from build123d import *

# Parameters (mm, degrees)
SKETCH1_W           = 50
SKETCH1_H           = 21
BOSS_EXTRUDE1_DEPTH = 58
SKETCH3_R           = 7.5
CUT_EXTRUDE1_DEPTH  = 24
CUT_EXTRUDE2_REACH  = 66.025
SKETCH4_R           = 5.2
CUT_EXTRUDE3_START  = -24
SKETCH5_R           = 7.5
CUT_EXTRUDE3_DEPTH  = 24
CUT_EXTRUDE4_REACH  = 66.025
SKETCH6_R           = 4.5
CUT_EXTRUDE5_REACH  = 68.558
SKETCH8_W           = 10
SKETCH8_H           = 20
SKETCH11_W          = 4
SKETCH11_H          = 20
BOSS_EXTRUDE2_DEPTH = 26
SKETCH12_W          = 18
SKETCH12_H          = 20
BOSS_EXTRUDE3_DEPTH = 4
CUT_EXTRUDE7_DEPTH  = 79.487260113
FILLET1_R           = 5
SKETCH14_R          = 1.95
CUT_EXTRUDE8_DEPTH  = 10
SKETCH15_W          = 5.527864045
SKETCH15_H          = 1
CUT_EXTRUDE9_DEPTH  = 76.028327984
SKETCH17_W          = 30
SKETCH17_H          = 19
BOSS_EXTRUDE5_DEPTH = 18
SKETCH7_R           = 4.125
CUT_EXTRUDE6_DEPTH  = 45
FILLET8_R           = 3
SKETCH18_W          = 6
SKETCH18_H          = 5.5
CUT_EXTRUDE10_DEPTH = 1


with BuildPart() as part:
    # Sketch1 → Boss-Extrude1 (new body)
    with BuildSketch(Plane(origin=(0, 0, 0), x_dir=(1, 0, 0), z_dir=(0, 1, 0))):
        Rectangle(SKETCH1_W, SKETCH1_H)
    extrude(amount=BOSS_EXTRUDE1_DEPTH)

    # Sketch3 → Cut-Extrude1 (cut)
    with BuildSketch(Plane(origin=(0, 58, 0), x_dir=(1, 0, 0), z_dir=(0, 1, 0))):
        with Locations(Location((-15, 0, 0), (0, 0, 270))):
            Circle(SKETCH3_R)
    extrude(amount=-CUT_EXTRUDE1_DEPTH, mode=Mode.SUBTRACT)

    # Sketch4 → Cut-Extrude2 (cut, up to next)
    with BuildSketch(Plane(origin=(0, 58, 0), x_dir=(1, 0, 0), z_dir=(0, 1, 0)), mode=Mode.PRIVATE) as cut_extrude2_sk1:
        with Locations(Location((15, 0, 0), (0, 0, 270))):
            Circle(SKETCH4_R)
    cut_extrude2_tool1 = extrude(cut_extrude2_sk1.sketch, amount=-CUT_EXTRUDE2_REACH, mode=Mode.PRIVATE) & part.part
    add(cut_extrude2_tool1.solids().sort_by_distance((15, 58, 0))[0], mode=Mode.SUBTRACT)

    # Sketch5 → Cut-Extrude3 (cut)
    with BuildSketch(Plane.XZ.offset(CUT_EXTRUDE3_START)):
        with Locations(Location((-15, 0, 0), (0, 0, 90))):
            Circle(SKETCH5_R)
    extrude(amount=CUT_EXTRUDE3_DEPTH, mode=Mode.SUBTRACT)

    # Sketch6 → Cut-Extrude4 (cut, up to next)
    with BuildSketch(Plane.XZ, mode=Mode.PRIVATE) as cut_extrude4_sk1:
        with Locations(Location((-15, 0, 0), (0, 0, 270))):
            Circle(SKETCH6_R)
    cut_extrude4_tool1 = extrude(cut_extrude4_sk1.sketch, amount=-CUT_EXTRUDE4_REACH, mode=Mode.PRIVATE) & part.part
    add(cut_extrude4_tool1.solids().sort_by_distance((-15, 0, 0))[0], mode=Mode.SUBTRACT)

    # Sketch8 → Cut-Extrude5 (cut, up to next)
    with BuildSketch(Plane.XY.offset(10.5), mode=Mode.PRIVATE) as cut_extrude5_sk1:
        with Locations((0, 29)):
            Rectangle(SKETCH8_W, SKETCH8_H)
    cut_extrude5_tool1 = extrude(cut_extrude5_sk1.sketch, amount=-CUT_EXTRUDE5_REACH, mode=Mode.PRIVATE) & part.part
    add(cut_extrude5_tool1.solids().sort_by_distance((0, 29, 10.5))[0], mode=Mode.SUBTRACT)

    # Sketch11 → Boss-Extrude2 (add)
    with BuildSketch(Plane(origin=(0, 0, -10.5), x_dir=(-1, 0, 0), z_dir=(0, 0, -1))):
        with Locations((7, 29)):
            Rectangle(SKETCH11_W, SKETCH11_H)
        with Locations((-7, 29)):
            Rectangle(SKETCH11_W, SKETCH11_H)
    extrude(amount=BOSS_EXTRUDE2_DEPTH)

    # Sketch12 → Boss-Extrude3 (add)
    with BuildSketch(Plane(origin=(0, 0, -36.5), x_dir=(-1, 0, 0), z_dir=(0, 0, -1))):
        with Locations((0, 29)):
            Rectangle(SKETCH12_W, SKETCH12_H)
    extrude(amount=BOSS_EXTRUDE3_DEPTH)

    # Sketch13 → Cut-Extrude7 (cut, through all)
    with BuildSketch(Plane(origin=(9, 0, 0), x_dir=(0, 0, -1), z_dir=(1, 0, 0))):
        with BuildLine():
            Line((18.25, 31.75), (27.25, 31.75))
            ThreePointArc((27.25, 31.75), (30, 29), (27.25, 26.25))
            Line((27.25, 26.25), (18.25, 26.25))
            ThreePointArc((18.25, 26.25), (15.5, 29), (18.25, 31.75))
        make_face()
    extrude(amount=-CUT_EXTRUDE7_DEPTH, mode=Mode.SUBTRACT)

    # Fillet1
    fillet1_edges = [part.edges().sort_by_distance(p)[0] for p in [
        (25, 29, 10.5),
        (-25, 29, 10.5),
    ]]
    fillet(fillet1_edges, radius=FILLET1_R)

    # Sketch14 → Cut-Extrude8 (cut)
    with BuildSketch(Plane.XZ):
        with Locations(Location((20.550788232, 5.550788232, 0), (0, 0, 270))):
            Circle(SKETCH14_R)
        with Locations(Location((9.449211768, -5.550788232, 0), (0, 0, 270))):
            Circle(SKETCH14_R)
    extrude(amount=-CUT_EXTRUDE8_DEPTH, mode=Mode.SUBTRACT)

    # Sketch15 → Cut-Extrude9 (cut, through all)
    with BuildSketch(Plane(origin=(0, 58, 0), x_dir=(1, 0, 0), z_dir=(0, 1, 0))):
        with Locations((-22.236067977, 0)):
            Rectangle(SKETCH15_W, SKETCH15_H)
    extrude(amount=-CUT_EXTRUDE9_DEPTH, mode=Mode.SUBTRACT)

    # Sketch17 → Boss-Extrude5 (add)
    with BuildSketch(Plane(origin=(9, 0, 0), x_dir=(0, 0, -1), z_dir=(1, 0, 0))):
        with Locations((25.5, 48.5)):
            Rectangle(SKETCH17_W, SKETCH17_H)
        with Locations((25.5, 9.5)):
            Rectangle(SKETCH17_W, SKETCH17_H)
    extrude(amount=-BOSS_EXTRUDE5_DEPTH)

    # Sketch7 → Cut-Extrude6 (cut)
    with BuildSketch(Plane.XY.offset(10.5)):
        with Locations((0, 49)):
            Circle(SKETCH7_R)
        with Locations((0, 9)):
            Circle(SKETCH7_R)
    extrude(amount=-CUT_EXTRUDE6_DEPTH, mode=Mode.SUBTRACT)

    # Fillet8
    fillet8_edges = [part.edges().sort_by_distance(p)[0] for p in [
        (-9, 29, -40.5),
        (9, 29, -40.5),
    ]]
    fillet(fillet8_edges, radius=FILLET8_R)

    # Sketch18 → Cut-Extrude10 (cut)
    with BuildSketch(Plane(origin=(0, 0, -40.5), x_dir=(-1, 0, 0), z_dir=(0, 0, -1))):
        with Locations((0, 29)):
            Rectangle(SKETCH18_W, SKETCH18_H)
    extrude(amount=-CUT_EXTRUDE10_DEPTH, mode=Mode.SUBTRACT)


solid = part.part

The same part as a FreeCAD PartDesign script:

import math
import FreeCAD as App
import Part
import Sketcher

V = App.Vector
Q = App.Units.Quantity


def edges_at(feature, points):
    """Names of the edges that pass closest to the given points."""
    edges = feature.Shape.Edges
    near = lambda p: min(range(len(edges)), key=lambda i: edges[i].distToShape(Part.Vertex(*p))[0])
    return sorted({f"Edge{near(p) + 1}" for p in points})

doc = App.newDocument("Part")
params = doc.addObject("Spreadsheet::Sheet", "Params")
for row, (alias, value) in enumerate([
    ("sketch1_width", "50 mm"),
    ("sketch1_height", "21 mm"),
    ("pad1_length", "58 mm"),
    ("sketch2_diameter", "15 mm"),
    ("pocket1_length", "24 mm"),
    ("sketch3_diameter", "10.4 mm"),
    ("sketch4_diameter", "15 mm"),
    ("pocket3_length", "24 mm"),
    ("sketch5_diameter", "9 mm"),
    ("pocket4_length", "34 mm"),
    ("sketch6_width", "10 mm"),
    ("sketch6_height", "20 mm"),
    ("sketch7_width", "4 mm"),
    ("sketch7_height", "20 mm"),
    ("pad2_length", "26 mm"),
    ("sketch8_width", "18 mm"),
    ("sketch8_height", "20 mm"),
    ("pad3_length", "4 mm"),
    ("sketch9_height", "9 mm"),
    ("sketch9_radius", "2.75 mm"),
    ("fillet_radius", "5 mm"),
    ("sketch10_diameter", "3.9 mm"),
    ("pocket7_length", "10 mm"),
    ("sketch11_height", "1 mm"),
    ("sketch12_width", "19 mm"),
    ("sketch12_height", "30 mm"),
    ("pad4_length", "18 mm"),
    ("sketch13_diameter", "8.25 mm"),
    ("pocket9_length", "45 mm"),
    ("fillet2_radius", "3 mm"),
    ("sketch14_width", "6 mm"),
    ("sketch14_height", "5.5 mm"),
    ("pocket10_length", "1 mm"),
], start=1):
    params.set(f"A{row}", alias)
    params.set(f"B{row}", "=" + value)
    params.setAlias(f"B{row}", alias)

body = doc.addObject("PartDesign::Body", "Body")

sketch1 = body.newObject("Sketcher::SketchObject", "Sketch")
sketch1.AttachmentSupport = (doc.getObject("XZ_Plane"), [""])
sketch1.MapMode = "FlatFace"
sketch1.addGeometry([
    Part.LineSegment(V(-25, -10, 0), V(-25, 10, 0)),
    Part.LineSegment(V(-25, 10, 0), V(25, 10, 0)),
    Part.LineSegment(V(25, 10, 0), V(25, -10, 0)),
    Part.LineSegment(V(25, -10, 0), V(-25, -10, 0)),
], False)
sketch1.addConstraint([
    Sketcher.Constraint("Coincident", 0, 2, 1, 1),
    Sketcher.Constraint("Coincident", 1, 2, 2, 1),
    Sketcher.Constraint("Coincident", 2, 2, 3, 1),
    Sketcher.Constraint("Coincident", 3, 2, 0, 1),
    Sketcher.Constraint("Vertical", 0),
    Sketcher.Constraint("Horizontal", 1),
    Sketcher.Constraint("Vertical", 2),
    Sketcher.Constraint("Horizontal", 3),
    Sketcher.Constraint("Symmetric", 0, 2, 2, 2, -1, 1),
    Sketcher.Constraint("DistanceX", 1, 1, 1, 2, Q("50 mm")),
    Sketcher.Constraint("DistanceY", 0, 1, 0, 2, Q("21 mm")),
])
sketch1.setExpression("Constraints[9]", "Params.sketch1_width")
sketch1.setExpression("Constraints[10]", "Params.sketch1_height")
pad1 = body.newObject("PartDesign::Pad", "Pad")
pad1.Profile = sketch1
pad1.setExpression("Length", "Params.pad1_length")
pad1.Reversed = True

sketch2 = body.newObject("Sketcher::SketchObject", "Sketch001")
sketch2.AttachmentSupport = (doc.getObject("XZ_Plane"), [""])
sketch2.MapMode = "FlatFace"
sketch2.AttachmentOffset = App.Placement(V(0, 0, -58), App.Rotation())
sketch2.addGeometry(Part.Circle(V(-15, 0, 0), V(0, 0, 1), 8), False)
sketch2.addConstraint([
    Sketcher.Constraint("PointOnObject", 0, 3, -1),
    Sketcher.Constraint("Diameter", 0, Q("15 mm")),
    Sketcher.Constraint("DistanceX", 0, 3, -1, 1, Q("15 mm")),
])
sketch2.setExpression("Constraints[1]", "Params.sketch2_diameter")
pocket1 = body.newObject("PartDesign::Pocket", "Pocket")
pocket1.Profile = sketch2
pocket1.setExpression("Length", "Params.pocket1_length")
pocket1.Reversed = True

sketch3 = body.newObject("Sketcher::SketchObject", "Sketch002")
sketch3.AttachmentSupport = (doc.getObject("XZ_Plane"), [""])
sketch3.MapMode = "FlatFace"
sketch3.AttachmentOffset = App.Placement(V(0, 0, -58), App.Rotation())
sketch3.addGeometry(Part.Circle(V(15, 0, 0), V(0, 0, 1), 5), False)
sketch3.addConstraint([
    Sketcher.Constraint("PointOnObject", 0, 3, -1),
    Sketcher.Constraint("Diameter", 0, Q("10.4 mm")),
    Sketcher.Constraint("DistanceX", -1, 1, 0, 3, Q("15 mm")),
])
sketch3.setExpression("Constraints[1]", "Params.sketch3_diameter")
pocket2 = body.newObject("PartDesign::Pocket", "Pocket001")
pocket2.Profile = sketch3
pocket2.Type = "UpToFirst"
pocket2.Reversed = True

sketch4 = body.newObject("Sketcher::SketchObject", "Sketch003")
sketch4.AttachmentSupport = (doc.getObject("XZ_Plane"), [""])
sketch4.MapMode = "FlatFace"
sketch4.AttachmentOffset = App.Placement(V(0, 0, -24), App.Rotation())
sketch4.addGeometry(Part.Circle(V(-15, 0, 0), V(0, 0, 1), 8), False)
sketch4.addConstraint([
    Sketcher.Constraint("PointOnObject", 0, 3, -1),
    Sketcher.Constraint("Diameter", 0, Q("15 mm")),
    Sketcher.Constraint("DistanceX", 0, 3, -1, 1, Q("15 mm")),
])
sketch4.setExpression("Constraints[1]", "Params.sketch4_diameter")
pocket3 = body.newObject("PartDesign::Pocket", "Pocket002")
pocket3.Profile = sketch4
pocket3.setExpression("Length", "Params.pocket3_length")
pocket3.Reversed = True

sketch5 = body.newObject("Sketcher::SketchObject", "Sketch004")
sketch5.AttachmentSupport = (doc.getObject("XZ_Plane"), [""])
sketch5.MapMode = "FlatFace"
sketch5.addGeometry(Part.Circle(V(-15, 0, 0), V(0, 0, 1), 4.5), False)
sketch5.addConstraint([
    Sketcher.Constraint("PointOnObject", 0, 3, -1),
    Sketcher.Constraint("Diameter", 0, Q("9 mm")),
    Sketcher.Constraint("DistanceX", 0, 3, -1, 1, Q("15 mm")),
])
sketch5.setExpression("Constraints[1]", "Params.sketch5_diameter")
pocket4 = body.newObject("PartDesign::Pocket", "Pocket003")
pocket4.Profile = sketch5
pocket4.setExpression("Length", "Params.pocket4_length")

sketch6 = body.newObject("Sketcher::SketchObject", "Sketch005")
sketch6.AttachmentSupport = (doc.getObject("XY_Plane"), [""])
sketch6.MapMode = "FlatFace"
sketch6.AttachmentOffset = App.Placement(V(0, 0, 10.5), App.Rotation())
sketch6.addGeometry([
    Part.LineSegment(V(-5, 39, 0), V(-5, 19, 0)),
    Part.LineSegment(V(-5, 19, 0), V(5, 19, 0)),
    Part.LineSegment(V(5, 19, 0), V(5, 39, 0)),
    Part.LineSegment(V(5, 39, 0), V(-5, 39, 0)),
], False)
sketch6.addConstraint([
    Sketcher.Constraint("Coincident", 0, 2, 1, 1),
    Sketcher.Constraint("Coincident", 1, 2, 2, 1),
    Sketcher.Constraint("Coincident", 2, 2, 3, 1),
    Sketcher.Constraint("Coincident", 3, 2, 0, 1),
    Sketcher.Constraint("Vertical", 0),
    Sketcher.Constraint("Horizontal", 1),
    Sketcher.Constraint("Vertical", 2),
    Sketcher.Constraint("Horizontal", 3),
    Sketcher.Constraint("DistanceX", 1, 1, 1, 2, Q("10 mm")),
    Sketcher.Constraint("DistanceY", 0, 2, 0, 1, Q("20 mm")),
    Sketcher.Constraint("DistanceX", 0, 2, -1, 1, Q("5 mm")),
    Sketcher.Constraint("DistanceY", -1, 1, 0, 2, Q("19 mm")),
])
sketch6.setExpression("Constraints[8]", "Params.sketch6_width")
sketch6.setExpression("Constraints[9]", "Params.sketch6_height")
pocket5 = body.newObject("PartDesign::Pocket", "Pocket004")
pocket5.Profile = sketch6
pocket5.Type = "UpToFirst"

sketch7 = body.newObject("Sketcher::SketchObject", "Sketch006")
sketch7.AttachmentSupport = (doc.getObject("XY_Plane"), [""])
sketch7.MapMode = "FlatFace"
sketch7.AttachmentOffset = App.Placement(V(0, 0, -10.5), App.Rotation())
sketch7.addGeometry([
    Part.LineSegment(V(-5, 39, 0), V(-5, 19, 0)),
    Part.LineSegment(V(-5, 19, 0), V(-9, 19, 0)),
    Part.LineSegment(V(-9, 19, 0), V(-9, 39, 0)),
    Part.LineSegment(V(-9, 39, 0), V(-5, 39, 0)),
    Part.LineSegment(V(9, 39, 0), V(9, 19, 0)),
    Part.LineSegment(V(9, 19, 0), V(5, 19, 0)),
    Part.LineSegment(V(5, 19, 0), V(5, 39, 0)),
    Part.LineSegment(V(5, 39, 0), V(9, 39, 0)),
], False)
sketch7.addConstraint([
    Sketcher.Constraint("Coincident", 0, 2, 1, 1),
    Sketcher.Constraint("Coincident", 1, 2, 2, 1),
    Sketcher.Constraint("Coincident", 2, 2, 3, 1),
    Sketcher.Constraint("Coincident", 3, 2, 0, 1),
    Sketcher.Constraint("Coincident", 4, 2, 5, 1),
    Sketcher.Constraint("Coincident", 5, 2, 6, 1),
    Sketcher.Constraint("Coincident", 6, 2, 7, 1),
    Sketcher.Constraint("Coincident", 7, 2, 4, 1),
    Sketcher.Constraint("Vertical", 0),
    Sketcher.Constraint("Horizontal", 1),
    Sketcher.Constraint("Vertical", 2),
    Sketcher.Constraint("Horizontal", 3),
    Sketcher.Constraint("Vertical", 4),
    Sketcher.Constraint("Horizontal", 5),
    Sketcher.Constraint("Vertical", 6),
    Sketcher.Constraint("Horizontal", 7),
    Sketcher.Constraint("Symmetric", 1, 2, 4, 2, -2),
    Sketcher.Constraint("Symmetric", 3, 2, 6, 2, -2),
    Sketcher.Constraint("DistanceX", 1, 2, 1, 1, Q("4 mm")),
    Sketcher.Constraint("DistanceY", 0, 2, 0, 1, Q("20 mm")),
    Sketcher.Constraint("DistanceX", 0, 2, -1, 1, Q("5 mm")),
    Sketcher.Constraint("DistanceY", -1, 1, 0, 2, Q("19 mm")),
])
sketch7.setExpression("Constraints[18]", "Params.sketch7_width")
sketch7.setExpression("Constraints[19]", "Params.sketch7_height")
pad2 = body.newObject("PartDesign::Pad", "Pad001")
pad2.Profile = sketch7
pad2.setExpression("Length", "Params.pad2_length")
pad2.Reversed = True

sketch8 = body.newObject("Sketcher::SketchObject", "Sketch007")
sketch8.AttachmentSupport = (doc.getObject("XY_Plane"), [""])
sketch8.MapMode = "FlatFace"
sketch8.AttachmentOffset = App.Placement(V(0, 0, -36.5), App.Rotation())
sketch8.addGeometry([
    Part.LineSegment(V(9, 39, 0), V(9, 19, 0)),
    Part.LineSegment(V(9, 19, 0), V(-9, 19, 0)),
    Part.LineSegment(V(-9, 19, 0), V(-9, 39, 0)),
    Part.LineSegment(V(-9, 39, 0), V(9, 39, 0)),
], False)
sketch8.addConstraint([
    Sketcher.Constraint("Coincident", 0, 2, 1, 1),
    Sketcher.Constraint("Coincident", 1, 2, 2, 1),
    Sketcher.Constraint("Coincident", 2, 2, 3, 1),
    Sketcher.Constraint("Coincident", 3, 2, 0, 1),
    Sketcher.Constraint("Vertical", 0),
    Sketcher.Constraint("Horizontal", 1),
    Sketcher.Constraint("Vertical", 2),
    Sketcher.Constraint("Horizontal", 3),
    Sketcher.Constraint("DistanceX", 1, 2, 1, 1, Q("18 mm")),
    Sketcher.Constraint("DistanceY", 0, 2, 0, 1, Q("20 mm")),
    Sketcher.Constraint("DistanceX", -1, 1, 0, 2, Q("9 mm")),
    Sketcher.Constraint("DistanceY", -1, 1, 0, 2, Q("19 mm")),
])
sketch8.setExpression("Constraints[8]", "Params.sketch8_width")
sketch8.setExpression("Constraints[9]", "Params.sketch8_height")
pad3 = body.newObject("PartDesign::Pad", "Pad002")
pad3.Profile = sketch8
pad3.setExpression("Length", "Params.pad3_length")
pad3.Reversed = True

sketch9 = body.newObject("Sketcher::SketchObject", "Sketch008")
sketch9.AttachmentSupport = (doc.getObject("YZ_Plane"), [""])
sketch9.MapMode = "FlatFace"
sketch9.AttachmentOffset = App.Placement(V(0, 0, 9), App.Rotation())
sketch9.addGeometry([
    Part.LineSegment(V(31.8, -27.2, 0), V(31.8, -18.2, 0)),
    Part.ArcOfCircle(Part.Circle(V(29, -18.2, 0), V(0, 0, 1), 2.8), math.radians(0), math.radians(180)),
    Part.LineSegment(V(26.2, -18.2, 0), V(26.2, -27.2, 0)),
    Part.ArcOfCircle(Part.Circle(V(29, -27.2, 0), V(0, 0, 1), 2.8), math.radians(180), math.radians(360)),
], False)
sketch9.addConstraint([
    Sketcher.Constraint("Tangent", 0, 2, 1, 1),
    Sketcher.Constraint("Tangent", 1, 2, 2, 1),
    Sketcher.Constraint("Tangent", 2, 2, 3, 1),
    Sketcher.Constraint("Tangent", 3, 2, 0, 1),
    Sketcher.Constraint("Vertical", 0),
    Sketcher.Constraint("Vertical", 2),
    Sketcher.Constraint("DistanceY", 0, 1, 0, 2, Q("9 mm")),
    Sketcher.Constraint("Radius", 1, Q("2.75 mm")),
    Sketcher.Constraint("DistanceX", -1, 1, 1, 3, Q("29 mm")),
    Sketcher.Constraint("DistanceY", 1, 3, -1, 1, Q("18.25 mm")),
])
sketch9.setExpression("Constraints[6]", "Params.sketch9_height")
sketch9.setExpression("Constraints[7]", "Params.sketch9_radius")
pocket6 = body.newObject("PartDesign::Pocket", "Pocket005")
pocket6.Profile = sketch9
pocket6.Type = "ThroughAll"
doc.recompute()

fillet = body.newObject("PartDesign::Fillet", "Fillet")
fillet.Base = (pocket6, edges_at(pocket6, [(25, 29, 10.5), (-25, 29, 10.5)]))
fillet.setExpression("Radius", "Params.fillet_radius")

sketch10 = body.newObject("Sketcher::SketchObject", "Sketch009")
sketch10.AttachmentSupport = (doc.getObject("XZ_Plane"), [""])
sketch10.MapMode = "FlatFace"
sketch10.addGeometry([
    Part.Circle(V(20.6, 5.6, 0), V(0, 0, 1), 1.9),
    Part.Circle(V(9.4, -5.6, 0), V(0, 0, 1), 1.9),
], False)
sketch10.addConstraint([
    Sketcher.Constraint("Equal", 0, 1),
    Sketcher.Constraint("Diameter", 0, Q("3.9 mm")),
    Sketcher.Constraint("DistanceX", -1, 1, 0, 3, Q("20.550788 mm")),
    Sketcher.Constraint("DistanceY", -1, 1, 0, 3, Q("5.550788 mm")),
    Sketcher.Constraint("DistanceX", -1, 1, 1, 3, Q("9.449212 mm")),
    Sketcher.Constraint("DistanceY", 1, 3, -1, 1, Q("5.550788 mm")),
])
sketch10.setExpression("Constraints[1]", "Params.sketch10_diameter")
pocket7 = body.newObject("PartDesign::Pocket", "Pocket006")
pocket7.Profile = sketch10
pocket7.setExpression("Length", "Params.pocket7_length")

sketch11 = body.newObject("Sketcher::SketchObject", "Sketch010")
sketch11.AttachmentSupport = (doc.getObject("XZ_Plane"), [""])
sketch11.MapMode = "FlatFace"
sketch11.AttachmentOffset = App.Placement(V(0, 0, -58), App.Rotation())
sketch11.addGeometry([
    Part.LineSegment(V(-25, -0.5, 0), V(-25, 0.5, 0)),
    Part.LineSegment(V(-25, 0.5, 0), V(-19.5, 0.5, 0)),
    Part.LineSegment(V(-19.5, 0.5, 0), V(-19.5, -0.5, 0)),
    Part.LineSegment(V(-19.5, -0.5, 0), V(-25, -0.5, 0)),
], False)
sketch11.addConstraint([
    Sketcher.Constraint("Coincident", 0, 2, 1, 1),
    Sketcher.Constraint("Coincident", 1, 2, 2, 1),
    Sketcher.Constraint("Coincident", 2, 2, 3, 1),
    Sketcher.Constraint("Coincident", 3, 2, 0, 1),
    Sketcher.Constraint("Vertical", 0),
    Sketcher.Constraint("Horizontal", 1),
    Sketcher.Constraint("Vertical", 2),
    Sketcher.Constraint("Horizontal", 3),
    Sketcher.Constraint("DistanceY", 0, 1, 0, 2, Q("1 mm")),
    Sketcher.Constraint("DistanceX", 0, 2, -1, 1, Q("25 mm")),
    Sketcher.Constraint("DistanceY", -1, 1, 0, 2, Q("0.5 mm")),
    Sketcher.Constraint("DistanceX", 1, 1, 1, 2, Q("5.527864 mm")),
])
sketch11.setExpression("Constraints[8]", "Params.sketch11_height")
pocket8 = body.newObject("PartDesign::Pocket", "Pocket007")
pocket8.Profile = sketch11
pocket8.Type = "ThroughAll"
pocket8.Reversed = True

sketch12 = body.newObject("Sketcher::SketchObject", "Sketch011")
sketch12.AttachmentSupport = (doc.getObject("YZ_Plane"), [""])
sketch12.MapMode = "FlatFace"
sketch12.AttachmentOffset = App.Placement(V(0, 0, 9), App.Rotation())
sketch12.addGeometry([
    Part.LineSegment(V(58, -10, 0), V(39, -10, 0)),
    Part.LineSegment(V(39, -10, 0), V(39, -40, 0)),
    Part.LineSegment(V(39, -40, 0), V(58, -40, 0)),
    Part.LineSegment(V(58, -40, 0), V(58, -10, 0)),
    Part.LineSegment(V(19, -10, 0), V(0, -10, 0)),
    Part.LineSegment(V(0, -10, 0), V(0, -40, 0)),
    Part.LineSegment(V(0, -40, 0), V(19, -40, 0)),
    Part.LineSegment(V(19, -40, 0), V(19, -10, 0)),
], False)
sketch12.addConstraint([
    Sketcher.Constraint("Coincident", 0, 2, 1, 1),
    Sketcher.Constraint("Coincident", 1, 2, 2, 1),
    Sketcher.Constraint("Coincident", 2, 2, 3, 1),
    Sketcher.Constraint("Coincident", 3, 2, 0, 1),
    Sketcher.Constraint("Coincident", 4, 2, 5, 1),
    Sketcher.Constraint("Coincident", 5, 2, 6, 1),
    Sketcher.Constraint("Coincident", 6, 2, 7, 1),
    Sketcher.Constraint("Coincident", 7, 2, 4, 1),
    Sketcher.Constraint("Horizontal", 0),
    Sketcher.Constraint("Vertical", 1),
    Sketcher.Constraint("Horizontal", 2),
    Sketcher.Constraint("Vertical", 3),
    Sketcher.Constraint("Horizontal", 4),
    Sketcher.Constraint("Vertical", 5),
    Sketcher.Constraint("Horizontal", 6),
    Sketcher.Constraint("Vertical", 7),
    Sketcher.Constraint("PointOnObject", 4, 2, -2),
    Sketcher.Constraint("Horizontal", 3, 2, 4, 2),
    Sketcher.Constraint("Horizontal", 2, 2, 5, 2),
    Sketcher.Constraint("Equal", 2, 4),
    Sketcher.Constraint("DistanceX", 0, 2, 0, 1, Q("19 mm")),
    Sketcher.Constraint("DistanceY", 1, 2, 1, 1, Q("30 mm")),
    Sketcher.Constraint("DistanceX", -1, 1, 0, 2, Q("39 mm")),
    Sketcher.Constraint("DistanceY", 0, 2, -1, 1, Q("10.5 mm")),
])
sketch12.setExpression("Constraints[20]", "Params.sketch12_width")
sketch12.setExpression("Constraints[21]", "Params.sketch12_height")
pad4 = body.newObject("PartDesign::Pad", "Pad003")
pad4.Profile = sketch12
pad4.setExpression("Length", "Params.pad4_length")
pad4.Reversed = True

sketch13 = body.newObject("Sketcher::SketchObject", "Sketch012")
sketch13.AttachmentSupport = (doc.getObject("XY_Plane"), [""])
sketch13.MapMode = "FlatFace"
sketch13.AttachmentOffset = App.Placement(V(0, 0, 10.5), App.Rotation())
sketch13.addGeometry([
    Part.Circle(V(0, 49, 0), V(0, 0, 1), 4.1),
    Part.Circle(V(0, 9, 0), V(0, 0, 1), 4.1),
], False)
sketch13.addConstraint([
    Sketcher.Constraint("Equal", 0, 1),
    Sketcher.Constraint("PointOnObject", 0, 3, -2),
    Sketcher.Constraint("PointOnObject", 1, 3, -2),
    Sketcher.Constraint("Diameter", 0, Q("8.25 mm")),
    Sketcher.Constraint("DistanceY", -1, 1, 0, 3, Q("49 mm")),
    Sketcher.Constraint("DistanceY", -1, 1, 1, 3, Q("9 mm")),
])
sketch13.setExpression("Constraints[3]", "Params.sketch13_diameter")
pocket9 = body.newObject("PartDesign::Pocket", "Pocket008")
pocket9.Profile = sketch13
pocket9.setExpression("Length", "Params.pocket9_length")
doc.recompute()

fillet2 = body.newObject("PartDesign::Fillet", "Fillet001")
fillet2.Base = (pocket9, edges_at(pocket9, [(-9, 29, -40.5), (9, 29, -40.5)]))
fillet2.setExpression("Radius", "Params.fillet2_radius")

sketch14 = body.newObject("Sketcher::SketchObject", "Sketch013")
sketch14.AttachmentSupport = (doc.getObject("XY_Plane"), [""])
sketch14.MapMode = "FlatFace"
sketch14.AttachmentOffset = App.Placement(V(0, 0, -40.5), App.Rotation())
sketch14.addGeometry([
    Part.LineSegment(V(3, 32, 0), V(3, 26, 0)),
    Part.LineSegment(V(3, 26, 0), V(-3, 26, 0)),
    Part.LineSegment(V(-3, 26, 0), V(-3, 32, 0)),
    Part.LineSegment(V(-3, 32, 0), V(3, 32, 0)),
], False)
sketch14.addConstraint([
    Sketcher.Constraint("Coincident", 0, 2, 1, 1),
    Sketcher.Constraint("Coincident", 1, 2, 2, 1),
    Sketcher.Constraint("Coincident", 2, 2, 3, 1),
    Sketcher.Constraint("Coincident", 3, 2, 0, 1),
    Sketcher.Constraint("Vertical", 0),
    Sketcher.Constraint("Horizontal", 1),
    Sketcher.Constraint("Vertical", 2),
    Sketcher.Constraint("Horizontal", 3),
    Sketcher.Constraint("DistanceX", 1, 2, 1, 1, Q("6 mm")),
    Sketcher.Constraint("DistanceY", 0, 2, 0, 1, Q("5.5 mm")),
    Sketcher.Constraint("DistanceX", -1, 1, 0, 2, Q("3 mm")),
    Sketcher.Constraint("DistanceY", -1, 1, 0, 2, Q("26.25 mm")),
])
sketch14.setExpression("Constraints[8]", "Params.sketch14_width")
sketch14.setExpression("Constraints[9]", "Params.sketch14_height")
pocket10 = body.newObject("PartDesign::Pocket", "Pocket009")
pocket10.Profile = sketch14
pocket10.setExpression("Length", "Params.pocket10_length")
pocket10.Reversed = True

doc.recompute()
